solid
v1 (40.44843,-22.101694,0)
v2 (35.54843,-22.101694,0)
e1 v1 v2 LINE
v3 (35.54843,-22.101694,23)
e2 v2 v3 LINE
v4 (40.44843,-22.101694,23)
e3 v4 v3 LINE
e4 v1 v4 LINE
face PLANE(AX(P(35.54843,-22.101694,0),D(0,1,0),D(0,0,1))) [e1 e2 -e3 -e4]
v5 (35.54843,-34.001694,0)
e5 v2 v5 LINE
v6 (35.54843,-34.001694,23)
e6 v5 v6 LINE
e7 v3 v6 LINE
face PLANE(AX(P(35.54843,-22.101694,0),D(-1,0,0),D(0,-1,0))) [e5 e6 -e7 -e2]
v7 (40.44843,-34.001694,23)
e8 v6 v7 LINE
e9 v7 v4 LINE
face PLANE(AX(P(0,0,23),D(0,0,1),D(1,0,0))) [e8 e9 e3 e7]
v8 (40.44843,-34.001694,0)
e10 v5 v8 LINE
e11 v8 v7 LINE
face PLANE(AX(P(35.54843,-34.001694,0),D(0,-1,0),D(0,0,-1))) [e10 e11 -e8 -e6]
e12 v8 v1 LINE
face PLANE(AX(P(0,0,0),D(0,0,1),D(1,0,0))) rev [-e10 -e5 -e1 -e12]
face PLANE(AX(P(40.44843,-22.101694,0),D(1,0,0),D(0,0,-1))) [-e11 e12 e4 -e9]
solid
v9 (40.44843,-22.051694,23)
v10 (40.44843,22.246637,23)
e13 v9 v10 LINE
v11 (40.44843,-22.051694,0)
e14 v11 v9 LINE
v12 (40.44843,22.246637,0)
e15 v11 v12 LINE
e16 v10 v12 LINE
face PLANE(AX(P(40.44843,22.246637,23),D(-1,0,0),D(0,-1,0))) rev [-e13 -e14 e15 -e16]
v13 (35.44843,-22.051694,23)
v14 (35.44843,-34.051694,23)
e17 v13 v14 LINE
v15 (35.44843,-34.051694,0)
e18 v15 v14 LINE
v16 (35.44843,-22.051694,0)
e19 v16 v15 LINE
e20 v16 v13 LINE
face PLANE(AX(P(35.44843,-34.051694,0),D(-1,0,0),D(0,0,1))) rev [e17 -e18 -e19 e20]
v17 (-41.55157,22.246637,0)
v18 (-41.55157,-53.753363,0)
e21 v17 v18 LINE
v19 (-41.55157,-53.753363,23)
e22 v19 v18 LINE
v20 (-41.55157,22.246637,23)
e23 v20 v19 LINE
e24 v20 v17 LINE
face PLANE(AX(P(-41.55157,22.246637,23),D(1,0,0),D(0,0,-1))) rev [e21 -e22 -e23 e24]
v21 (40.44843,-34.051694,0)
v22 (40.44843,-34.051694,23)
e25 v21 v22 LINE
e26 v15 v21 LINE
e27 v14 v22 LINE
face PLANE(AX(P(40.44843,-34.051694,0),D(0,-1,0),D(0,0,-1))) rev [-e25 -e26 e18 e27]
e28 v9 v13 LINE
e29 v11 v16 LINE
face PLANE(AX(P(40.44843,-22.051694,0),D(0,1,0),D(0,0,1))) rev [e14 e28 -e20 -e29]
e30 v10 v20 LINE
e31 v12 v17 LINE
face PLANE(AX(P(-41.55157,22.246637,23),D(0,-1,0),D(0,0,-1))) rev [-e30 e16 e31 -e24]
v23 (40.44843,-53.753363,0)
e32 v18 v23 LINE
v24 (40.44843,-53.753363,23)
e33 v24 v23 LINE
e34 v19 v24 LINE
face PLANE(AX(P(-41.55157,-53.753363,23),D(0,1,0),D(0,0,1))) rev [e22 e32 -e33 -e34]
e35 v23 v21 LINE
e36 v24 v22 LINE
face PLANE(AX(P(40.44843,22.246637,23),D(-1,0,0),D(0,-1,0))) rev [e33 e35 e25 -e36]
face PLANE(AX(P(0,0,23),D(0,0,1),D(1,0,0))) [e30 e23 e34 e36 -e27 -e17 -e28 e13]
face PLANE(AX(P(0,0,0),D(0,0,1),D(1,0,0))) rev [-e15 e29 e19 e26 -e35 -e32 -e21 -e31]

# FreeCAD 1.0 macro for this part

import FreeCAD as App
import Part
import Sketcher
from FreeCAD import Vector


def add_polygon(sketch, points):
    """Adds a closed chain of lines whose ends are joined by coincident constraints."""
    first, n = sketch.GeometryCount, len(points)
    for a, b in zip(points, points[1:] + points[:1]):
        sketch.addGeometry(Part.LineSegment(App.Vector(*a, 0), App.Vector(*b, 0)), False)
    for i in range(n):
        sketch.addConstraint(Sketcher.Constraint("Coincident", first + i, 2, first + (i + 1) % n, 1))

doc = App.newDocument("Part")
body = doc.addObject("PartDesign::Body", "Body")

# Sketch on XY plane
sketch1 = body.newObject("Sketcher::SketchObject", "Sketch")
sketch1.AttachmentSupport = (doc.getObject("XY_Plane"), [""])
sketch1.MapMode = "FlatFace"
add_polygon(sketch1, [(-42, 22), (-42, -54), (40, -54), (40, 22)])  # lines 0-3
sketch1.addConstraint([
    Sketcher.Constraint("Vertical", 0),
    Sketcher.Constraint("Horizontal", 1),
    Sketcher.Constraint("Vertical", 2),
    Sketcher.Constraint("Horizontal", 3),
    Sketcher.Constraint("DistanceX", 1, 1, 1, 2, 82.0),
    Sketcher.Constraint("DistanceY", 0, 2, 0, 1, 76.0),
    Sketcher.Constraint("DistanceX", 0, 2, -1, 1, 41.55157),
    Sketcher.Constraint("DistanceY", 0, 2, -1, 1, 53.753363),
])
pad1 = body.newObject("PartDesign::Pad", "Pad")
pad1.Profile = sketch1
pad1.Length = 23

# Sketch on XY plane
sketch2 = body.newObject("Sketcher::SketchObject", "Sketch001")
sketch2.AttachmentSupport = (doc.getObject("XY_Plane"), [""])
sketch2.MapMode = "FlatFace"
sketch2.AttachmentOffset = App.Placement(Vector(0, 0, 23), App.Rotation())
add_polygon(sketch2, [(35, -22), (35, -34), (40, -34), (40, -22)])  # lines 0-3
sketch2.addConstraint([
    Sketcher.Constraint("Vertical", 0),
    Sketcher.Constraint("Horizontal", 1),
    Sketcher.Constraint("Vertical", 2),
    Sketcher.Constraint("Horizontal", 3),
    Sketcher.Constraint("DistanceX", 1, 1, 1, 2, 5.0),
    Sketcher.Constraint("DistanceY", 0, 2, 0, 1, 12.0),
    Sketcher.Constraint("DistanceX", -1, 1, 0, 2, 35.44843),
    Sketcher.Constraint("DistanceY", 0, 2, -1, 1, 34.051694),
])
pocket1 = body.newObject("PartDesign::Pocket", "Pocket")
pocket1.Profile = sketch2
pocket1.Length = 23
body2 = doc.addObject("PartDesign::Body", "Body001")

# Sketch on XY plane
sketch3 = body2.newObject("Sketcher::SketchObject", "Sketch002")
sketch3.AttachmentSupport = (doc.getObject("XY_Plane001"), [""])
sketch3.MapMode = "FlatFace"
sketch3.AttachmentOffset = App.Placement(Vector(0, 0, 23), App.Rotation())
add_polygon(sketch3, [(35.5, -22.1), (35.5, -34), (40.4, -34), (40.4, -22.1)])  # lines 0-3
sketch3.addConstraint([
    Sketcher.Constraint("Vertical", 0),
    Sketcher.Constraint("Horizontal", 1),
    Sketcher.Constraint("Vertical", 2),
    Sketcher.Constraint("Horizontal", 3),
    Sketcher.Constraint("DistanceX", 1, 1, 1, 2, 4.9),
    Sketcher.Constraint("DistanceY", 0, 2, 0, 1, 11.9),
    Sketcher.Constraint("DistanceX", -1, 1, 0, 2, 35.54843),
    Sketcher.Constraint("DistanceY", 0, 2, -1, 1, 34.001694),
])
pad2 = body2.newObject("PartDesign::Pad", "Pad001")
pad2.Profile = sketch3
pad2.Length = 23
pad2.Reversed = True

doc.recompute()
